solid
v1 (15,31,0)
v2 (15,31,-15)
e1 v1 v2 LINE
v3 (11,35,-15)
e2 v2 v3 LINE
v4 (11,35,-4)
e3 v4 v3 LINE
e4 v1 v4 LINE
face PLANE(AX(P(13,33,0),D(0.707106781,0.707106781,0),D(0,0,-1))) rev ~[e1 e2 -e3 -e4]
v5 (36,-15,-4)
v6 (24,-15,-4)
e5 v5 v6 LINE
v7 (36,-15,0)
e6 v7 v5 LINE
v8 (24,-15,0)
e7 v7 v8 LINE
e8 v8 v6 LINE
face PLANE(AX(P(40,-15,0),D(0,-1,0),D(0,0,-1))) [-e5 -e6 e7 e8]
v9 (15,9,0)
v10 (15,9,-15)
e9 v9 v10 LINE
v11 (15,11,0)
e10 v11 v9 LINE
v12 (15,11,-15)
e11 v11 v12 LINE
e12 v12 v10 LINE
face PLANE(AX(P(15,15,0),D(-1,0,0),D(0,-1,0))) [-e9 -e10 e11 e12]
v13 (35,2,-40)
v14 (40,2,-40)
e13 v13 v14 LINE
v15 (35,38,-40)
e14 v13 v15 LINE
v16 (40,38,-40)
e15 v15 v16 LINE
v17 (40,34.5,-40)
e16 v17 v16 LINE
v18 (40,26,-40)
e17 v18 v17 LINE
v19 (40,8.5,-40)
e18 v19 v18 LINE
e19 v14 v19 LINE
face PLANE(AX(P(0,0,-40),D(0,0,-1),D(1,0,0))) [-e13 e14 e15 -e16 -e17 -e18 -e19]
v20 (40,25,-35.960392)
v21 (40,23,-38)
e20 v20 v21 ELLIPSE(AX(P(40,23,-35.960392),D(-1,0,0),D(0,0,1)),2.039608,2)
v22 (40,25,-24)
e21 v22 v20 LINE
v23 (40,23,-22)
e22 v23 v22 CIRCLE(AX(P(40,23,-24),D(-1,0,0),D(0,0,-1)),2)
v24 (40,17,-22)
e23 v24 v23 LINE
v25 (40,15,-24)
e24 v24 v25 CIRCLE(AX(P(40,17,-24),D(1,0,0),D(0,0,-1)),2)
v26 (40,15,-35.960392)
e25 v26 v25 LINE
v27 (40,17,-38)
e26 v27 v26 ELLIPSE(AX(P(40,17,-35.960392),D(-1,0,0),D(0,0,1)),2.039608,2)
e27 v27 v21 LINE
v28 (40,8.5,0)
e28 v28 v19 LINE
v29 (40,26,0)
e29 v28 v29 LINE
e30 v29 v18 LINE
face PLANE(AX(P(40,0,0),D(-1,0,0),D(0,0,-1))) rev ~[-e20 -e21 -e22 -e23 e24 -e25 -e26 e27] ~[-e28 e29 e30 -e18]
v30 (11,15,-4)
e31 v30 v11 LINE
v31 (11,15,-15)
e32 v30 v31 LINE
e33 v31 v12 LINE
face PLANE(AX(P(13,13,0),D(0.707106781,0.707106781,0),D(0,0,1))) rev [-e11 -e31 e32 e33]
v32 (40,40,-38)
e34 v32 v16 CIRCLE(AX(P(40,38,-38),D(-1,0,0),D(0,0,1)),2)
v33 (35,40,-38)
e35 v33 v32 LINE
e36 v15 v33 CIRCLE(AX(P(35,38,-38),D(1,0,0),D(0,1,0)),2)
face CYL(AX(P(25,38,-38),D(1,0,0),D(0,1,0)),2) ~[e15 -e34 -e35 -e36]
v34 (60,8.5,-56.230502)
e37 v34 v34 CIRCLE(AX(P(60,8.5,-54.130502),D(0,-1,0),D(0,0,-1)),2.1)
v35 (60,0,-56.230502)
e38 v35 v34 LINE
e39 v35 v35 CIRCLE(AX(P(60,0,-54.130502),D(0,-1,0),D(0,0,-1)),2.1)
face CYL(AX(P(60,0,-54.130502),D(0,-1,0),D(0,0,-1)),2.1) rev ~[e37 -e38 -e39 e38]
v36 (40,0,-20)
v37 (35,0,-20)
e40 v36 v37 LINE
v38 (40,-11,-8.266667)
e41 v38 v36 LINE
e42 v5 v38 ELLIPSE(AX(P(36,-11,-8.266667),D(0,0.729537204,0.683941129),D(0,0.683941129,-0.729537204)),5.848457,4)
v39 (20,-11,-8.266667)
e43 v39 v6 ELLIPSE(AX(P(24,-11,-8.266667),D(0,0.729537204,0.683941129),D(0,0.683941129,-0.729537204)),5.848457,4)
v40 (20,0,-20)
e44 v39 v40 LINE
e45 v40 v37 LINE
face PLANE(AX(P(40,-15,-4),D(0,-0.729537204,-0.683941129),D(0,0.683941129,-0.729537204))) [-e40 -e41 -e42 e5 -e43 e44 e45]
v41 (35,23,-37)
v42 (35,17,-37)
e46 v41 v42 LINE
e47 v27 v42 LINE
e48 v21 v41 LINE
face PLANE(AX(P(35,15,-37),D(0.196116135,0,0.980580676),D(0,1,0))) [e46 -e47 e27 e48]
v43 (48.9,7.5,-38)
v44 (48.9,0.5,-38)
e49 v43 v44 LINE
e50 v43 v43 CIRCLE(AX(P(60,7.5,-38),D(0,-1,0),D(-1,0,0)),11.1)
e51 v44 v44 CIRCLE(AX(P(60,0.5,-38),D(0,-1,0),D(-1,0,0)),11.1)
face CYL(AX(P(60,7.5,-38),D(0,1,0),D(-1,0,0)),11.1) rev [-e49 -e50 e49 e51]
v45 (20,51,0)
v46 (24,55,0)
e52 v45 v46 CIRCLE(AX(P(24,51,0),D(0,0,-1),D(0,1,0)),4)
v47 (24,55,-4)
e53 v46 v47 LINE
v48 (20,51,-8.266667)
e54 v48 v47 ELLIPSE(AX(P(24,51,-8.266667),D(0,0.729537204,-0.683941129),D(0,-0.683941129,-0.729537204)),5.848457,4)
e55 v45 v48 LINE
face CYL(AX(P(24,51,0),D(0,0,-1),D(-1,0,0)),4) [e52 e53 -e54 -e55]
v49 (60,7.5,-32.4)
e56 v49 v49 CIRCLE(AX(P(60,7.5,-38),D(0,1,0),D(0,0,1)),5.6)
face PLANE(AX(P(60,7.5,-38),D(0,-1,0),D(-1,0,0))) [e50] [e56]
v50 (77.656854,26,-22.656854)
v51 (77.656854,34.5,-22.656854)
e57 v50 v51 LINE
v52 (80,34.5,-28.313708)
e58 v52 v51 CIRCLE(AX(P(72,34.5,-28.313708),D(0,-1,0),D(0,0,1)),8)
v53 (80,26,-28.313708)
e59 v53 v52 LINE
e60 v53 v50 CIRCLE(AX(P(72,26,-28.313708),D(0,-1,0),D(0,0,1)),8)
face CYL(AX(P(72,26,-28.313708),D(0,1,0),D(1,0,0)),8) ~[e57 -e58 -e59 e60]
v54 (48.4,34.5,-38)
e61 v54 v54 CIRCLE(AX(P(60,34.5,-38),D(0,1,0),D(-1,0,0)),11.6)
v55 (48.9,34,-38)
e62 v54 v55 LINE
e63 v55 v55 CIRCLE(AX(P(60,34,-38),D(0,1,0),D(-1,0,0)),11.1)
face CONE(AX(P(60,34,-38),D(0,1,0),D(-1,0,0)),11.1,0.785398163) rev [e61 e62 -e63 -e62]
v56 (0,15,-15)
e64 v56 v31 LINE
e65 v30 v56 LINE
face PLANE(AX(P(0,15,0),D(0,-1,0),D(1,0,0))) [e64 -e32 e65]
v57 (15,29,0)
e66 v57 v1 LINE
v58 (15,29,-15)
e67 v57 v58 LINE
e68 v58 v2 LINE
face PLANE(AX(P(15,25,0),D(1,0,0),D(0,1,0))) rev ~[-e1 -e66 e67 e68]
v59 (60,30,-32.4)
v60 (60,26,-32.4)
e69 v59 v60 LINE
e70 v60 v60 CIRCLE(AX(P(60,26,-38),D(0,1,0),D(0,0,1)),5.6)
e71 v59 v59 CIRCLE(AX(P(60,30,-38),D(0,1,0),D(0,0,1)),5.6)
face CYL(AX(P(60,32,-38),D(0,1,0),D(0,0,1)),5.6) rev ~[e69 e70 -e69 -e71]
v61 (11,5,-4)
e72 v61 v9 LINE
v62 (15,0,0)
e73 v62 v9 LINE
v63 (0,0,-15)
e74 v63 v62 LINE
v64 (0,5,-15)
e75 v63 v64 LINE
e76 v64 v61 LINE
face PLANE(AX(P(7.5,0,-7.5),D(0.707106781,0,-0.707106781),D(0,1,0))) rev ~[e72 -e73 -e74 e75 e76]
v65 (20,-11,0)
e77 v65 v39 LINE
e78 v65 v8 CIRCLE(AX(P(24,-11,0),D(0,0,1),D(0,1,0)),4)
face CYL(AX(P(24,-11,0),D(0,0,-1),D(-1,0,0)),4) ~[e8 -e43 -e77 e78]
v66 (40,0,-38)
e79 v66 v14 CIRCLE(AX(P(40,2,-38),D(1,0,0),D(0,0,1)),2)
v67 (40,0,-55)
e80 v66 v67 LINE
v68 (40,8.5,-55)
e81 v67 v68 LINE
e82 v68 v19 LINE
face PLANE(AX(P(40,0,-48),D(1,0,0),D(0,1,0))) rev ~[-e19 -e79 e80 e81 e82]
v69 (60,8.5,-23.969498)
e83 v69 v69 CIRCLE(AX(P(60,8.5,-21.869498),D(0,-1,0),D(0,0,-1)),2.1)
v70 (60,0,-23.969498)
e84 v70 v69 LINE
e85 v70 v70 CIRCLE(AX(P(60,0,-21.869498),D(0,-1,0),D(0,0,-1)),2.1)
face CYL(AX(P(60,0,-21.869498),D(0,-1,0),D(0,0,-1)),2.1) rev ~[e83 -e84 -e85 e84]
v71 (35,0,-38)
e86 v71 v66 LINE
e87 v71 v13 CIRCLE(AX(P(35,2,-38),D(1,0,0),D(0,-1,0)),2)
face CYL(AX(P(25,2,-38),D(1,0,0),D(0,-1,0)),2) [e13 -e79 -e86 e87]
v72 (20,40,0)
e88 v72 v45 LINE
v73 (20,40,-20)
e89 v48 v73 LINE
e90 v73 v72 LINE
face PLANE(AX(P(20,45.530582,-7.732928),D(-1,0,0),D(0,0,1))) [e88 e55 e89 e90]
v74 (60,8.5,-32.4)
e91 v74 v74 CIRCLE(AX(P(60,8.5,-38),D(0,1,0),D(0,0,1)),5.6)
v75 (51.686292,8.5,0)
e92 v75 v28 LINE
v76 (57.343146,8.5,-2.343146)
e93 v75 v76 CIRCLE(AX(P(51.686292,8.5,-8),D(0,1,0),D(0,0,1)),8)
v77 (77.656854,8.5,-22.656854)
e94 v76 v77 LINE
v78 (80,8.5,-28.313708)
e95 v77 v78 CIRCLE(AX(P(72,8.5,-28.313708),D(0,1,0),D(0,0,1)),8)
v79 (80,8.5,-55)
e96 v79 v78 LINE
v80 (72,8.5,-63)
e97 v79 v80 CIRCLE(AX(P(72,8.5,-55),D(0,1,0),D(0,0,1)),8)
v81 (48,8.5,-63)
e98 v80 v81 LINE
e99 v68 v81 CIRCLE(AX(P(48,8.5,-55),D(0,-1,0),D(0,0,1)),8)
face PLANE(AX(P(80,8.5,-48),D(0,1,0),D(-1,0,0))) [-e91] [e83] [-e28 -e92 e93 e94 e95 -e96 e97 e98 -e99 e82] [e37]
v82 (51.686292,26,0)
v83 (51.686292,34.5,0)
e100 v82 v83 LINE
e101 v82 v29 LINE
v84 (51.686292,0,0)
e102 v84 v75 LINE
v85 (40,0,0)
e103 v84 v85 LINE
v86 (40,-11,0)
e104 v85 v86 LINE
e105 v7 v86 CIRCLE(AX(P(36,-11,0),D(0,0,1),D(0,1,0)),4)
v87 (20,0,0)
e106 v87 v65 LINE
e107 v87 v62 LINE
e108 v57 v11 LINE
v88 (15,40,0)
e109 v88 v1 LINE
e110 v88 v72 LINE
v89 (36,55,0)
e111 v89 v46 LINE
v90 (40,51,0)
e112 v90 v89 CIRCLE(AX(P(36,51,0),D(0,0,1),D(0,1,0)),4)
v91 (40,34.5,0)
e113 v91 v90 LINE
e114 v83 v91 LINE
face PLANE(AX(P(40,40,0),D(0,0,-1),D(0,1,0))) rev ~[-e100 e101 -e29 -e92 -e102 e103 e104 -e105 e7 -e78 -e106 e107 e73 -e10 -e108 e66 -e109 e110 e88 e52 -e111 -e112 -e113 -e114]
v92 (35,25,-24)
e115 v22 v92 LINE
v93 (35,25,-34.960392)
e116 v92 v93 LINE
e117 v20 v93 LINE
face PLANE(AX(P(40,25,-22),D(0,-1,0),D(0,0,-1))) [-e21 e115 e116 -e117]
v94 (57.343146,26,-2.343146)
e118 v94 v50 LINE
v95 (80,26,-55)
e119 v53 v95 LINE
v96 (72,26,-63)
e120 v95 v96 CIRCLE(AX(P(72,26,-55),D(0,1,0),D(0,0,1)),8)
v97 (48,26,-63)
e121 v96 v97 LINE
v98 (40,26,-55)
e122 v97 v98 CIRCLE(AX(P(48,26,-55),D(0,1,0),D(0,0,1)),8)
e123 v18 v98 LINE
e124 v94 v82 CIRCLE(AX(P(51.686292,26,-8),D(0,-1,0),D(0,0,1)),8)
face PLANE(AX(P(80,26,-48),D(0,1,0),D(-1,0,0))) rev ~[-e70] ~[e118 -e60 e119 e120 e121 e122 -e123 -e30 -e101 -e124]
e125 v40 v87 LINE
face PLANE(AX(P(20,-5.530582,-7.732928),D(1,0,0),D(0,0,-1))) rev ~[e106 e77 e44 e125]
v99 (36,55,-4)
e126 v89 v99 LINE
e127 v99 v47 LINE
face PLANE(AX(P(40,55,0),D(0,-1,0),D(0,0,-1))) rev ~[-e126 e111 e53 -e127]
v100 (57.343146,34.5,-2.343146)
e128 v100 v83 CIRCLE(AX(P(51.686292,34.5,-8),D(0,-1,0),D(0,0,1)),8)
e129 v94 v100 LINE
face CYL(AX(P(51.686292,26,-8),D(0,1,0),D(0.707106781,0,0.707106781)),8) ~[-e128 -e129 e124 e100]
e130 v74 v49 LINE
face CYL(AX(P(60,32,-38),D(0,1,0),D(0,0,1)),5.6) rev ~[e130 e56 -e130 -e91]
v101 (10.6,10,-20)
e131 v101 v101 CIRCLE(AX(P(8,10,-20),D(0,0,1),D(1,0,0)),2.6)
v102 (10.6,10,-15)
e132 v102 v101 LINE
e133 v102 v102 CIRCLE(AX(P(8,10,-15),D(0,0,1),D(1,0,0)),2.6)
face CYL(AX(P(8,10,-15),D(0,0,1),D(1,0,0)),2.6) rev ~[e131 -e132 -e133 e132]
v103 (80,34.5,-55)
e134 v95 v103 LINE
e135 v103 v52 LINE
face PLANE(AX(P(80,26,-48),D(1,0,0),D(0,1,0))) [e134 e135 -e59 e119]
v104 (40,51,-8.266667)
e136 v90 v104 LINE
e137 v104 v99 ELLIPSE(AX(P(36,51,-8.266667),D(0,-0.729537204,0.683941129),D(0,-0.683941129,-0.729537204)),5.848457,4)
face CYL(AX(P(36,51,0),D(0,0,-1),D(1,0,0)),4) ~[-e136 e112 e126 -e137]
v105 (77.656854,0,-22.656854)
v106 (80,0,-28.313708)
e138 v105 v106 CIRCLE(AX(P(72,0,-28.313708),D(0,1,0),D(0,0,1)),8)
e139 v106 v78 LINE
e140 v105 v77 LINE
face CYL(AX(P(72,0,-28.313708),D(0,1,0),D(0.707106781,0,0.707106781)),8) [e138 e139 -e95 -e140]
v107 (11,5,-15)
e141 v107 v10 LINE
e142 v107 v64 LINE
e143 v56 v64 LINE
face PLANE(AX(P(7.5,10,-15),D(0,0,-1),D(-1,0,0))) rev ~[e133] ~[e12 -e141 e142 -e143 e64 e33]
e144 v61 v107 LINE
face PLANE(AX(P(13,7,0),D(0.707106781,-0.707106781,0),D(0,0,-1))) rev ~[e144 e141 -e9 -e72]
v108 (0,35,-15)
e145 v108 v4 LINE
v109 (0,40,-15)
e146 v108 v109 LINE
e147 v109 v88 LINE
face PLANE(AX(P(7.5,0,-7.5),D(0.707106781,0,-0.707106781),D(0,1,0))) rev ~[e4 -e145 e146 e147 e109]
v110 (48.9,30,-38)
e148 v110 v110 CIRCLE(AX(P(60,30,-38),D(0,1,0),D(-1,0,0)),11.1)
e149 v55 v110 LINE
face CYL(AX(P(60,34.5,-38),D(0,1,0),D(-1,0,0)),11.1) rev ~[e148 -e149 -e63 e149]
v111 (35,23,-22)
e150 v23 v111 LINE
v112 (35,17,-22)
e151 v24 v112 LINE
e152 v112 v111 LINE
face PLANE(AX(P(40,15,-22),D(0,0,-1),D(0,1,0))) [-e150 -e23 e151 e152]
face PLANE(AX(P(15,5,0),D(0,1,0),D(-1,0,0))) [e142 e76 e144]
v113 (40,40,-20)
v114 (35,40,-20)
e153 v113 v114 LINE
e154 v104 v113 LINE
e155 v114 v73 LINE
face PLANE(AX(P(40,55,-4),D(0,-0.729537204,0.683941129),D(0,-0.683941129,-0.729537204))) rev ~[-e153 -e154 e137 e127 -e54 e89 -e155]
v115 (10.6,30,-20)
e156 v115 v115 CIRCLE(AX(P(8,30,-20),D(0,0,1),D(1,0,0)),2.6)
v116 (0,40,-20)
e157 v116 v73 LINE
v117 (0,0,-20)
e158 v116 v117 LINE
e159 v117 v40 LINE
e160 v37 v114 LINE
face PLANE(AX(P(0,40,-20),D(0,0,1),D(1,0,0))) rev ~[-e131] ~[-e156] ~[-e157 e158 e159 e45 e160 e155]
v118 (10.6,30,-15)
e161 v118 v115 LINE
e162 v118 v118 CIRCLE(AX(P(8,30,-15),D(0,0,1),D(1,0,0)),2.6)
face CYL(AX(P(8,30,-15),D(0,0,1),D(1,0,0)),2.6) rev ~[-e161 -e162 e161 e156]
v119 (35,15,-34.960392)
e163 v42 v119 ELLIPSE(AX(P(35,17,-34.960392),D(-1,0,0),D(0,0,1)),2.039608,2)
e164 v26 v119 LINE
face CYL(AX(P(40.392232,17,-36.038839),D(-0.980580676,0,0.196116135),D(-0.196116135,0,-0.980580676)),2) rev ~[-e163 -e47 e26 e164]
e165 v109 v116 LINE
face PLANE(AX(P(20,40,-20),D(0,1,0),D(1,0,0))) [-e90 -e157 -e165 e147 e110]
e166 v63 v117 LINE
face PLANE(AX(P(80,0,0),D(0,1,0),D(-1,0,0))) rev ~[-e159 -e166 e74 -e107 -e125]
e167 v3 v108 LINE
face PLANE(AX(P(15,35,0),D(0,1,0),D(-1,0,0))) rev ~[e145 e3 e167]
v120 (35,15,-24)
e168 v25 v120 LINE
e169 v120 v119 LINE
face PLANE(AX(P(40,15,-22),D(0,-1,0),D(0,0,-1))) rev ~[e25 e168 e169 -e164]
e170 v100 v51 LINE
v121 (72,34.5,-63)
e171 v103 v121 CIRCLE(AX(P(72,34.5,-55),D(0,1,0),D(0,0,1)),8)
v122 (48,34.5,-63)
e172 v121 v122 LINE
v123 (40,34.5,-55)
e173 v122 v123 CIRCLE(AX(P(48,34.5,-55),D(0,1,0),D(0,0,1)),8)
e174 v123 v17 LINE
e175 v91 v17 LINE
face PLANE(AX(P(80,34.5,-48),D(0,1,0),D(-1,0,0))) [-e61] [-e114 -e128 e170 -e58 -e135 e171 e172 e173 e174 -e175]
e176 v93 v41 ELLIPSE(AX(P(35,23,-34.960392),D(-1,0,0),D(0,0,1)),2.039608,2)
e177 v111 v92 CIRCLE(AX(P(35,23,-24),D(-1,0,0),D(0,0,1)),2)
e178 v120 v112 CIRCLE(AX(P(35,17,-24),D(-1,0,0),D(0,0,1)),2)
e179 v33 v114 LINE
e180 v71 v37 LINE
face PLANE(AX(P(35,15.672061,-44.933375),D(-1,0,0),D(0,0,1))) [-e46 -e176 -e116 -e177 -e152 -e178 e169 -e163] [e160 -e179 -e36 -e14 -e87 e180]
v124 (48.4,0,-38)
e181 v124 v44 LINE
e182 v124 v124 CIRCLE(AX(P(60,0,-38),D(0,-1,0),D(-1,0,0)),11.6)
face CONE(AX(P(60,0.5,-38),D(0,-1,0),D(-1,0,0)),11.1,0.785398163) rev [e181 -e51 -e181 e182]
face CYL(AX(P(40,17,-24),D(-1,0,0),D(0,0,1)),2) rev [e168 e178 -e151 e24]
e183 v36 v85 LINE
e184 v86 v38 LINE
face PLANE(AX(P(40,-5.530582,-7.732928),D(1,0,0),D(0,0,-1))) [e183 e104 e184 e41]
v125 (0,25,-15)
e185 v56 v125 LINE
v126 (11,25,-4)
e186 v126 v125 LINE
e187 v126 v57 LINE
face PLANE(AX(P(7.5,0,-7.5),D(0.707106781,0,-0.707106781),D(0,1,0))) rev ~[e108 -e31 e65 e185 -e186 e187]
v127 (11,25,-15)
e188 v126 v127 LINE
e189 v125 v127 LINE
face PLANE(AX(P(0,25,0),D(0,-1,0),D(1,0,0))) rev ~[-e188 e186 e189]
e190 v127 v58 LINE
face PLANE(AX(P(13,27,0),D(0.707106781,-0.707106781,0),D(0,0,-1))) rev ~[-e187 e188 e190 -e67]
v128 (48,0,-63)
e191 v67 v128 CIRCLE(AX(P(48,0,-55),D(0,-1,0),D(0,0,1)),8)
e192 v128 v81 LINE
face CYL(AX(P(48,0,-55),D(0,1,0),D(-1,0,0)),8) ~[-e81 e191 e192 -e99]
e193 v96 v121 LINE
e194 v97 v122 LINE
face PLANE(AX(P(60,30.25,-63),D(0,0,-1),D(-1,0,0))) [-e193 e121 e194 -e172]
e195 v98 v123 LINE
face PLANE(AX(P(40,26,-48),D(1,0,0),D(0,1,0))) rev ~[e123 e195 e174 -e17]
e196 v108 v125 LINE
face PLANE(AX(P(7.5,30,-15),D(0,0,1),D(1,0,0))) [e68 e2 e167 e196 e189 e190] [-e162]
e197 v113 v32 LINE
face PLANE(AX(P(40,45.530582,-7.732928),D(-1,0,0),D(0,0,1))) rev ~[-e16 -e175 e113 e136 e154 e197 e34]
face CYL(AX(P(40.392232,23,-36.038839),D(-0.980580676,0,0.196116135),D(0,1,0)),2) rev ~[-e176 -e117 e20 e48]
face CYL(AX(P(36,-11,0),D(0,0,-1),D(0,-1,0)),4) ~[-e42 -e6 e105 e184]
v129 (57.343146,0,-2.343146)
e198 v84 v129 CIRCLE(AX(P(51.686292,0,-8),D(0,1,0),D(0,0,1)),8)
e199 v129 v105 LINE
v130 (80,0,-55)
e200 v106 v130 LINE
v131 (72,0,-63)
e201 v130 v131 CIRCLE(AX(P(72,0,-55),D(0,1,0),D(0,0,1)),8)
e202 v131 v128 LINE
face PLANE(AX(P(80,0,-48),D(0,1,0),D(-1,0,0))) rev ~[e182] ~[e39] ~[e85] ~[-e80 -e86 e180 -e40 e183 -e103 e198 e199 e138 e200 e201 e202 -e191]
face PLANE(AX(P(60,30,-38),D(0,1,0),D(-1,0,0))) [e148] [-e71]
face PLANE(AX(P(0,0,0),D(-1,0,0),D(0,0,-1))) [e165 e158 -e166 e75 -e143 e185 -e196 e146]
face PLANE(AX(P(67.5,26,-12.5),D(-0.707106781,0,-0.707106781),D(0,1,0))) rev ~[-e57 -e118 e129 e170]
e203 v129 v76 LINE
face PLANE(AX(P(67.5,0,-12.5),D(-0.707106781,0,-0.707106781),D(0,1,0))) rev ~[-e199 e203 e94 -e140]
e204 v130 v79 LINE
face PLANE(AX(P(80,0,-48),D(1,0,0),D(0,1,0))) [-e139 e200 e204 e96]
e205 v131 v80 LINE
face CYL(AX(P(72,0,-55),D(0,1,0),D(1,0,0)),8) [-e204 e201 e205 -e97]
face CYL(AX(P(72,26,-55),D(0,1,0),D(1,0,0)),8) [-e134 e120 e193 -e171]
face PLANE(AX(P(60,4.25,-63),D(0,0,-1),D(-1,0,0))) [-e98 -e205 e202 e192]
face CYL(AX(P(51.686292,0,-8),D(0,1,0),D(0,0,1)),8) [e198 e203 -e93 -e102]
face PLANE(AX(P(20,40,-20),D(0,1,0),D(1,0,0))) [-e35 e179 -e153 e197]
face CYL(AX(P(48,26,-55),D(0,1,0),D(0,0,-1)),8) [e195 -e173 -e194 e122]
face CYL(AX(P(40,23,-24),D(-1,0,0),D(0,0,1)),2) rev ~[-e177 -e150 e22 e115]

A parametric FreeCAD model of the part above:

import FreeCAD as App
import Part
import Sketcher

V = App.Vector


def edges_at(feature, points):
    """Names of the edges that pass closest to the given points."""
    edges = feature.Shape.Edges
    near = lambda p: min(range(len(edges)), key=lambda i: edges[i].distToShape(Part.Vertex(*p))[0])
    return sorted({f"Edge{near(p) + 1}" for p in points})


def add_polygon(sketch, points):
    """Adds a closed chain of lines whose ends are joined by coincident constraints."""
    first, n = sketch.GeometryCount, len(points)
    for a, b in zip(points, points[1:] + points[:1]):
        sketch.addGeometry(Part.LineSegment(App.Vector(*a, 0), App.Vector(*b, 0)), False)
    for i in range(n):
        sketch.addConstraint(Sketcher.Constraint("Coincident", first + i, 2, first + (i + 1) % n, 1))

doc = App.newDocument("Part")
params = doc.addObject("Spreadsheet::Sheet", "Params")
for row, (alias, value) in enumerate([
    ("sketch1_width", "40 mm"),
    ("pad1_length", "40 mm"),
    ("sketch2_width", "25 mm"),
    ("sketch2_height", "20 mm"),
    ("pocket1_length", "40 mm"),
    ("chamfer_size", "15 mm"),
    ("sketch3_width", "15 mm"),
    ("sketch3_height", "10 mm"),
    ("pocket2_length", "15 mm"),
    ("chamfer2_size", "4 mm"),
    ("sketch4_diameter", "5.2 mm"),
    ("pocket3_length", "17 mm"),
    ("sketch5_width", "40 mm"),
    ("sketch5_height", "8.5 mm"),
    ("pad2_length", "8 mm"),
    ("pad2_length2", "40 mm"),
    ("sketch6_width", "10 mm"),
    ("sketch6_height", "14 mm"),
    ("pocket4_length", "26 mm"),
    ("sketch7_diameter", "11.2 mm"),
    ("pocket5_length", "34 mm"),
    ("sketch8_width", "15 mm"),
    ("sketch8_height", "20 mm"),
    ("sketch8_height2", "4 mm"),
    ("pad3_length", "20 mm"),
    ("fillet_radius", "4 mm"),
    ("fillet2_radius", "2 mm"),
    ("chamfer3_size", "25 mm"),
    ("chamfer4_size", "2 mm"),
    ("chamfer4_size2", "10 mm"),
    ("fillet3_radius", "2 mm"),
    ("sketch9_width", "40 mm"),
    ("sketch9_height", "8.5 mm"),
    ("pad4_length", "15 mm"),
    ("sketch10_width", "40 mm"),
    ("sketch10_height", "8.5 mm"),
    ("pad5_length", "15 mm"),
    ("sketch11_diameter", "22.2 mm"),
    ("pocket6_length", "4.5 mm"),
    ("sketch12_diameter", "22.2 mm"),
    ("pocket7_length", "7.5 mm"),
    ("sketch13_diameter", "4.2 mm"),
    ("pocket8_length", "10 mm"),
    ("chamfer5_size", "0.5 mm"),
    ("fillet4_radius", "8 mm"),
    ("pocket9_length", "10 mm"),
], start=1):
    params.set(f"A{row}", alias)
    params.set(f"B{row}", "=" + value)
    params.setAlias(f"B{row}", alias)

body = doc.addObject("PartDesign::Body", "Body")

# Sketch on XZ plane
sketch1 = body.newObject("Sketcher::SketchObject", "Sketch")
sketch1.AttachmentSupport = (doc.getObject("XZ_Plane"), [""])
sketch1.MapMode = "FlatFace"
add_polygon(sketch1, [(0, -40), (0, 0), (40, 0), (40, -40)])  # lines 0-3
sketch1.addConstraint(Sketcher.Constraint("Vertical", 0))
sketch1.addConstraint(Sketcher.Constraint("Horizontal", 1))
sketch1.addConstraint(Sketcher.Constraint("Vertical", 2))
sketch1.addConstraint(Sketcher.Constraint("Horizontal", 3))
sketch1.addConstraint(Sketcher.Constraint("Coincident", 0, 2, -1, 1))
sketch1.addConstraint(Sketcher.Constraint("Equal", 3, 0))
sketch1.addConstraint(Sketcher.Constraint("DistanceX", 1, 1, 1, 2, 40.0))
sketch1.setExpression("Constraints[10]", "Params.sketch1_width")
pad1 = body.newObject("PartDesign::Pad", "Pad")
pad1.Profile = sketch1
pad1.setExpression("Length", "Params.pad1_length")
pad1.Reversed = True

# Sketch on XZ plane
sketch2 = body.newObject("Sketcher::SketchObject", "Sketch001")
sketch2.AttachmentSupport = (doc.getObject("XZ_Plane"), [""])
sketch2.MapMode = "FlatFace"
sketch2.AttachmentOffset = App.Placement(V(0, 0, -40), App.Rotation())
add_polygon(sketch2, [(0, -40), (0, -20), (25, -20), (25, -40)])  # lines 0-3
sketch2.addConstraint(Sketcher.Constraint("Vertical", 0))
sketch2.addConstraint(Sketcher.Constraint("Horizontal", 1))
sketch2.addConstraint(Sketcher.Constraint("Vertical", 2))
sketch2.addConstraint(Sketcher.Constraint("Horizontal", 3))
sketch2.addConstraint(Sketcher.Constraint("PointOnObject", 0, 2, -2))
sketch2.addConstraint(Sketcher.Constraint("DistanceX", 1, 1, 1, 2, 25.0))
sketch2.addConstraint(Sketcher.Constraint("DistanceY", 0, 1, 0, 2, 20.0))
sketch2.addConstraint(Sketcher.Constraint("DistanceY", 0, 2, -1, 1, 20.0))
sketch2.setExpression("Constraints[9]", "Params.sketch2_width")
sketch2.setExpression("Constraints[10]", "Params.sketch2_height")
pocket1 = body.newObject("PartDesign::Pocket", "Pocket")
pocket1.Profile = sketch2
pocket1.setExpression("Length", "Params.pocket1_length")
pocket1.Reversed = True
doc.recompute()

chamfer = body.newObject("PartDesign::Chamfer", "Chamfer")
chamfer.Base = (pocket1, edges_at(pocket1, [(0, 20, 0)]))
chamfer.setExpression("Size", "Params.chamfer_size")

# Sketch on XY plane
sketch3 = body.newObject("Sketcher::SketchObject", "Sketch002")
sketch3.AttachmentSupport = (doc.getObject("XY_Plane"), [""])
sketch3.MapMode = "FlatFace"
add_polygon(sketch3, [(0, 15), (0, 5), (15, 5), (15, 15)])  # lines 0-3
add_polygon(sketch3, [(0, 25), (15, 25), (15, 35), (0, 35)])  # lines 4-7
sketch3.addConstraint(Sketcher.Constraint("Vertical", 0))
sketch3.addConstraint(Sketcher.Constraint("Horizontal", 1))
sketch3.addConstraint(Sketcher.Constraint("Vertical", 2))
sketch3.addConstraint(Sketcher.Constraint("Horizontal", 3))
sketch3.addConstraint(Sketcher.Constraint("Horizontal", 4))
sketch3.addConstraint(Sketcher.Constraint("Vertical", 5))
sketch3.addConstraint(Sketcher.Constraint("Horizontal", 6))
sketch3.addConstraint(Sketcher.Constraint("Vertical", 7))
sketch3.addConstraint(Sketcher.Constraint("PointOnObject", 0, 2, -2))
sketch3.addConstraint(Sketcher.Constraint("PointOnObject", 6, 2, -2))
sketch3.addConstraint(Sketcher.Constraint("Vertical", 2, 2, 4, 2))
sketch3.addConstraint(Sketcher.Constraint("Equal", 2, 5))
sketch3.addConstraint(Sketcher.Constraint("DistanceX", 1, 1, 1, 2, 15.0))
sketch3.addConstraint(Sketcher.Constraint("DistanceY", 0, 2, 0, 1, 10.0))
sketch3.addConstraint(Sketcher.Constraint("DistanceY", -1, 1, 0, 2, 5.0))
sketch3.addConstraint(Sketcher.Constraint("DistanceY", -1, 1, 4, 2, 25.0))
sketch3.setExpression("Constraints[20]", "Params.sketch3_width")
sketch3.setExpression("Constraints[21]", "Params.sketch3_height")
pocket2 = body.newObject("PartDesign::Pocket", "Pocket001")
pocket2.Profile = sketch3
pocket2.setExpression("Length", "Params.pocket2_length")
doc.recompute()

chamfer2 = body.newObject("PartDesign::Chamfer", "Chamfer001")
chamfer2.Base = (pocket2, edges_at(pocket2, [
    (15, 35, -7.5),
    (15, 25, -7.5),
    (15, 15, -7.5),
    (15, 5, -7.5),
]))
chamfer2.setExpression("Size", "Params.chamfer2_size")

# Sketch on XY plane
sketch4 = body.newObject("Sketcher::SketchObject", "Sketch003")
sketch4.AttachmentSupport = (doc.getObject("XY_Plane"), [""])
sketch4.MapMode = "FlatFace"
sketch4.AttachmentOffset = App.Placement(V(0, 0, -15), App.Rotation())
sketch4.addGeometry(Part.Circle(V(8, 30, 0), V(0, 0, 1), 2.6), False)
sketch4.addGeometry(Part.Circle(V(8, 10, 0), V(0, 0, 1), 2.6), False)
sketch4.addConstraint(Sketcher.Constraint("Equal", 0, 1))
sketch4.addConstraint(Sketcher.Constraint("Vertical", 0, 3, 1, 3))
sketch4.addConstraint(Sketcher.Constraint("Diameter", 0, 5.2))
sketch4.addConstraint(Sketcher.Constraint("DistanceX", -1, 1, 0, 3, 8.0))
sketch4.addConstraint(Sketcher.Constraint("DistanceY", -1, 1, 0, 3, 30.0))
sketch4.addConstraint(Sketcher.Constraint("DistanceY", -1, 1, 1, 3, 10.0))
sketch4.setExpression("Constraints[2]", "Params.sketch4_diameter")
pocket3 = body.newObject("PartDesign::Pocket", "Pocket002")
pocket3.Profile = sketch4
pocket3.setExpression("Length", "Params.pocket3_length")

# Sketch on XY plane
sketch5 = body.newObject("Sketcher::SketchObject", "Sketch004")
sketch5.AttachmentSupport = (doc.getObject("XY_Plane"), [""])
sketch5.MapMode = "FlatFace"
sketch5.AttachmentOffset = App.Placement(V(0, 0, -40), App.Rotation())
add_polygon(sketch5, [(80, 8), (80, 0), (40, 0), (40, 8)])  # lines 0-3
add_polygon(sketch5, [(80, 34), (80, 26), (40, 26), (40, 34)])  # lines 4-7
sketch5.addConstraint(Sketcher.Constraint("Vertical", 0))
sketch5.addConstraint(Sketcher.Constraint("Horizontal", 1))
sketch5.addConstraint(Sketcher.Constraint("Vertical", 2))
sketch5.addConstraint(Sketcher.Constraint("Horizontal", 3))
sketch5.addConstraint(Sketcher.Constraint("Vertical", 4))
sketch5.addConstraint(Sketcher.Constraint("Horizontal", 5))
sketch5.addConstraint(Sketcher.Constraint("Vertical", 6))
sketch5.addConstraint(Sketcher.Constraint("Horizontal", 7))
sketch5.addConstraint(Sketcher.Constraint("PointOnObject", 0, 2, -1))
sketch5.addConstraint(Sketcher.Constraint("Vertical", 3, 2, 4, 2))
sketch5.addConstraint(Sketcher.Constraint("Vertical", 2, 2, 5, 2))
sketch5.addConstraint(Sketcher.Constraint("Equal", 2, 4))
sketch5.addConstraint(Sketcher.Constraint("DistanceX", 1, 2, 1, 1, 40.0))
sketch5.addConstraint(Sketcher.Constraint("DistanceY", 0, 2, 0, 1, 8.5))
sketch5.addConstraint(Sketcher.Constraint("DistanceX", -1, 1, 0, 2, 80.0))
sketch5.addConstraint(Sketcher.Constraint("DistanceY", -1, 1, 4, 2, 26.0))
sketch5.setExpression("Constraints[20]", "Params.sketch5_width")
sketch5.setExpression("Constraints[21]", "Params.sketch5_height")
pad2 = body.newObject("PartDesign::Pad", "Pad001")
pad2.Profile = sketch5
pad2.Type = "TwoLengths"
pad2.setExpression("Length", "Params.pad2_length")
pad2.setExpression("Length2", "Params.pad2_length2")
pad2.Reversed = True

# Sketch on YZ plane
sketch6 = body.newObject("Sketcher::SketchObject", "Sketch005")
sketch6.AttachmentSupport = (doc.getObject("YZ_Plane"), [""])
sketch6.MapMode = "FlatFace"
sketch6.AttachmentOffset = App.Placement(V(0, 0, 40), App.Rotation())
add_polygon(sketch6, [(25, -22), (15, -22), (15, -36), (25, -36)])  # lines 0-3
sketch6.addConstraint(Sketcher.Constraint("Horizontal", 0))
sketch6.addConstraint(Sketcher.Constraint("Vertical", 1))
sketch6.addConstraint(Sketcher.Constraint("Horizontal", 2))
sketch6.addConstraint(Sketcher.Constraint("Vertical", 3))
sketch6.addConstraint(Sketcher.Constraint("DistanceX", 0, 2, 0, 1, 10.0))
sketch6.addConstraint(Sketcher.Constraint("DistanceY", 1, 2, 1, 1, 14.0))
sketch6.addConstraint(Sketcher.Constraint("DistanceX", -1, 1, 0, 2, 15.0))
sketch6.addConstraint(Sketcher.Constraint("DistanceY", 0, 2, -1, 1, 22.0))
sketch6.setExpression("Constraints[8]", "Params.sketch6_width")
sketch6.setExpression("Constraints[9]", "Params.sketch6_height")
pocket4 = body.newObject("PartDesign::Pocket", "Pocket003")
pocket4.Profile = sketch6
pocket4.setExpression("Length", "Params.pocket4_length")

# Sketch on XZ plane
sketch7 = body.newObject("Sketcher::SketchObject", "Sketch006")
sketch7.AttachmentSupport = (doc.getObject("XZ_Plane"), [""])
sketch7.MapMode = "FlatFace"
sketch7.AttachmentOffset = App.Placement(V(0, 0, -32), App.Rotation())
sketch7.addGeometry(Part.Circle(V(60, -38, 0), V(0, 0, 1), 6), False)
sketch7.addConstraint(Sketcher.Constraint("Diameter", 0, 11.2))
sketch7.addConstraint(Sketcher.Constraint("DistanceX", -1, 1, 0, 3, 60.0))
sketch7.addConstraint(Sketcher.Constraint("DistanceY", 0, 3, -1, 1, 38.0))
sketch7.setExpression("Constraints[0]", "Params.sketch7_diameter")
pocket5 = body.newObject("PartDesign::Pocket", "Pocket004")
pocket5.Profile = sketch7
pocket5.setExpression("Length", "Params.pocket5_length")
pocket5.Reversed = True

# Sketch on YZ plane
sketch8 = body.newObject("Sketcher::SketchObject", "Sketch007")
sketch8.AttachmentSupport = (doc.getObject("YZ_Plane"), [""])
sketch8.MapMode = "FlatFace"
sketch8.AttachmentOffset = App.Placement(V(0, 0, 40), App.Rotation())
add_polygon(sketch8, [(55, 0), (40, 0), (40, -20), (55, -4)])  # lines 0-3
add_polygon(sketch8, [(0, 0), (-15, 0), (-15, -4), (0, -20)])  # lines 4-7
sketch8.addConstraint(Sketcher.Constraint("Horizontal", 0))
sketch8.addConstraint(Sketcher.Constraint("Vertical", 1))
sketch8.addConstraint(Sketcher.Constraint("Vertical", 3))
sketch8.addConstraint(Sketcher.Constraint("Horizontal", 4))
sketch8.addConstraint(Sketcher.Constraint("Vertical", 5))
sketch8.addConstraint(Sketcher.Constraint("Vertical", 7))
sketch8.addConstraint(Sketcher.Constraint("Coincident", 7, 2, -1, 1))
sketch8.addConstraint(Sketcher.Constraint("PointOnObject", 0, 2, -1))
sketch8.addConstraint(Sketcher.Constraint("Horizontal", 2, 2, 5, 2))
sketch8.addConstraint(Sketcher.Constraint("Horizontal", 1, 2, 6, 2))
sketch8.addConstraint(Sketcher.Constraint("Equal", 0, 4))
sketch8.addConstraint(Sketcher.Constraint("DistanceX", 0, 2, 0, 1, 15.0))
sketch8.addConstraint(Sketcher.Constraint("DistanceY", 1, 2, 1, 1, 20.0))
sketch8.addConstraint(Sketcher.Constraint("DistanceY", 3, 1, 3, 2, 4.0))
sketch8.addConstraint(Sketcher.Constraint("DistanceX", -1, 1, 0, 2, 40.0))
sketch8.setExpression("Constraints[19]", "Params.sketch8_width")
sketch8.setExpression("Constraints[20]", "Params.sketch8_height")
sketch8.setExpression("Constraints[21]", "Params.sketch8_height2")
pad3 = body.newObject("PartDesign::Pad", "Pad002")
pad3.Profile = sketch8
pad3.setExpression("Length", "Params.pad3_length")
pad3.Reversed = True
doc.recompute()

fillet = body.newObject("PartDesign::Fillet", "Fillet")
fillet.Base = (pad3, edges_at(pad3, [
    (20, 55, -2),
    (40, 55, -2),
    (20, -15, -2),
    (40, -15, -2),
]))
fillet.setExpression("Radius", "Params.fillet_radius")
doc.recompute()

fillet2 = body.newObject("PartDesign::Fillet", "Fillet001")
fillet2.Base = (fillet, edges_at(fillet, [(32.5, 40, -40), (32.5, 0, -40)]))
fillet2.setExpression("Radius", "Params.fillet2_radius")
doc.recompute()

chamfer3 = body.newObject("PartDesign::Chamfer", "Chamfer002")
chamfer3.Base = (fillet2, edges_at(fillet2, [(80, 4.25, 0), (80, 30.25, 0)]))
chamfer3.setExpression("Size", "Params.chamfer3_size")
doc.recompute()

chamfer4 = body.newObject("PartDesign::Chamfer", "Chamfer003")
chamfer4.Base = (chamfer3, edges_at(chamfer3, [(40, 20, -36)]))
chamfer4.ChamferType = "Two distances"
chamfer4.setExpression("Size", "Params.chamfer4_size")
chamfer4.setExpression("Size2", "Params.chamfer4_size2")
doc.recompute()

fillet3 = body.newObject("PartDesign::Fillet", "Fillet002")
fillet3.Base = (chamfer4, edges_at(chamfer4, [
    (27.5, 15, -36),
    (32.5, 15, -22),
    (32.5, 25, -22),
    (27.5, 25, -36),
    (35, 25, -37),
    (35, 15, -37),
]))
fillet3.setExpression("Radius", "Params.fillet3_radius")

# Sketch on XY plane
sketch9 = body.newObject("Sketcher::SketchObject", "Sketch008")
sketch9.AttachmentSupport = (doc.getObject("XY_Plane"), [""])
sketch9.MapMode = "FlatFace"
sketch9.AttachmentOffset = App.Placement(V(0, 0, -48), App.Rotation())
add_polygon(sketch9, [(80, 8), (80, 0), (40, 0), (40, 8)])  # lines 0-3
sketch9.addConstraint(Sketcher.Constraint("Vertical", 0))
sketch9.addConstraint(Sketcher.Constraint("Horizontal", 1))
sketch9.addConstraint(Sketcher.Constraint("Vertical", 2))
sketch9.addConstraint(Sketcher.Constraint("Horizontal", 3))
sketch9.addConstraint(Sketcher.Constraint("PointOnObject", 0, 2, -1))
sketch9.addConstraint(Sketcher.Constraint("DistanceX", 1, 2, 1, 1, 40.0))
sketch9.addConstraint(Sketcher.Constraint("DistanceY", 0, 2, 0, 1, 8.5))
sketch9.addConstraint(Sketcher.Constraint("DistanceX", -1, 1, 0, 2, 80.0))
sketch9.setExpression("Constraints[9]", "Params.sketch9_width")
sketch9.setExpression("Constraints[10]", "Params.sketch9_height")
pad4 = body.newObject("PartDesign::Pad", "Pad003")
pad4.Profile = sketch9
pad4.setExpression("Length", "Params.pad4_length")
pad4.Reversed = True

# Sketch on XY plane
sketch10 = body.newObject("Sketcher::SketchObject", "Sketch009")
sketch10.AttachmentSupport = (doc.getObject("XY_Plane"), [""])
sketch10.MapMode = "FlatFace"
sketch10.AttachmentOffset = App.Placement(V(0, 0, -48), App.Rotation())
add_polygon(sketch10, [(80, 34), (80, 26), (40, 26), (40, 34)])  # lines 0-3
sketch10.addConstraint(Sketcher.Constraint("Vertical", 0))
sketch10.addConstraint(Sketcher.Constraint("Horizontal", 1))
sketch10.addConstraint(Sketcher.Constraint("Vertical", 2))
sketch10.addConstraint(Sketcher.Constraint("Horizontal", 3))
sketch10.addConstraint(Sketcher.Constraint("DistanceX", 1, 2, 1, 1, 40.0))
sketch10.addConstraint(Sketcher.Constraint("DistanceY", 0, 2, 0, 1, 8.5))
sketch10.addConstraint(Sketcher.Constraint("DistanceX", -1, 1, 0, 2, 80.0))
sketch10.addConstraint(Sketcher.Constraint("DistanceY", -1, 1, 0, 2, 26.0))
sketch10.setExpression("Constraints[8]", "Params.sketch10_width")
sketch10.setExpression("Constraints[9]", "Params.sketch10_height")
pad5 = body.newObject("PartDesign::Pad", "Pad004")
pad5.Profile = sketch10
pad5.setExpression("Length", "Params.pad5_length")
pad5.Reversed = True

# Sketch on XZ plane
sketch11 = body.newObject("Sketcher::SketchObject", "Sketch010")
sketch11.AttachmentSupport = (doc.getObject("XZ_Plane"), [""])
sketch11.MapMode = "FlatFace"
sketch11.AttachmentOffset = App.Placement(V(0, 0, -34.5), App.Rotation())
sketch11.addGeometry(Part.Circle(V(60, -38, 0), V(0, 0, 1), 11), False)
sketch11.addConstraint(Sketcher.Constraint("Diameter", 0, 22.2))
sketch11.addConstraint(Sketcher.Constraint("DistanceX", -1, 1, 0, 3, 60.0))
sketch11.addConstraint(Sketcher.Constraint("DistanceY", 0, 3, -1, 1, 38.0))
sketch11.setExpression("Constraints[0]", "Params.sketch11_diameter")
pocket6 = body.newObject("PartDesign::Pocket", "Pocket005")
pocket6.Profile = sketch11
pocket6.setExpression("Length", "Params.pocket6_length")
pocket6.Reversed = True

# Sketch on XZ plane
sketch12 = body.newObject("Sketcher::SketchObject", "Sketch011")
sketch12.AttachmentSupport = (doc.getObject("XZ_Plane"), [""])
sketch12.MapMode = "FlatFace"
sketch12.AttachmentOffset = App.Placement(V(0, 0, -7.5), App.Rotation())
sketch12.addGeometry(Part.Circle(V(60, -38, 0), V(0, 0, 1), 11), False)
sketch12.addConstraint(Sketcher.Constraint("Diameter", 0, 22.2))
sketch12.addConstraint(Sketcher.Constraint("DistanceX", -1, 1, 0, 3, 60.0))
sketch12.addConstraint(Sketcher.Constraint("DistanceY", 0, 3, -1, 1, 38.0))
sketch12.setExpression("Constraints[0]", "Params.sketch12_diameter")
pocket7 = body.newObject("PartDesign::Pocket", "Pocket006")
pocket7.Profile = sketch12
pocket7.setExpression("Length", "Params.pocket7_length")
pocket7.Reversed = True

# Sketch on XZ plane
sketch13 = body.newObject("Sketcher::SketchObject", "Sketch012")
sketch13.AttachmentSupport = (doc.getObject("XZ_Plane"), [""])
sketch13.MapMode = "FlatFace"
sketch13.addGeometry(Part.Circle(V(60, -54.1, 0), V(0, 0, 1), 2.1), False)
sketch13.addGeometry(Part.Circle(V(60, -21.9, 0), V(0, 0, 1), 2.1), False)
sketch13.addConstraint(Sketcher.Constraint("Equal", 0, 1))
sketch13.addConstraint(Sketcher.Constraint("Vertical", 0, 3, 1, 3))
sketch13.addConstraint(Sketcher.Constraint("Diameter", 0, 4.2))
sketch13.addConstraint(Sketcher.Constraint("DistanceX", -1, 1, 0, 3, 60.0))
sketch13.addConstraint(Sketcher.Constraint("DistanceY", 0, 3, -1, 1, 54.130502))
sketch13.addConstraint(Sketcher.Constraint("DistanceY", 1, 3, -1, 1, 21.869498))
sketch13.setExpression("Constraints[2]", "Params.sketch13_diameter")
pocket8 = body.newObject("PartDesign::Pocket", "Pocket007")
pocket8.Profile = sketch13
pocket8.setExpression("Length", "Params.pocket8_length")
doc.recompute()

chamfer5 = body.newObject("PartDesign::Chamfer", "Chamfer004")
chamfer5.Base = (pocket8, edges_at(pocket8, [(71.1, 34.5, -38), (71.1, 0, -38)]))
chamfer5.setExpression("Size", "Params.chamfer5_size")
doc.recompute()

fillet4 = body.newObject("PartDesign::Fillet", "Fillet003")
fillet4.Base = (chamfer5, edges_at(chamfer5, [
    (55, 30.25, 0),
    (55, 4.25, 0),
    (80, 4.25, -25),
    (80, 30.25, -25),
    (80, 4.25, -63),
    (40, 4.25, -63),
    (80, 30.25, -63),
    (40, 30.25, -63),
]))
fillet4.setExpression("Radius", "Params.fillet4_radius")

# Sketch on YZ plane
sketch14 = body.newObject("Sketcher::SketchObject", "Sketch013")
sketch14.AttachmentSupport = (doc.getObject("YZ_Plane"), [""])
sketch14.MapMode = "FlatFace"
sketch14.AttachmentOffset = App.Placement(V(0, 0, 25), App.Rotation())
add_polygon(sketch14, [(0, -20), (69, -20), (69, -63), (-51, -63)])  # lines 0-3
sketch14.addConstraint(Sketcher.Constraint("Horizontal", 0))
sketch14.addConstraint(Sketcher.Constraint("Vertical", 1))
sketch14.addConstraint(Sketcher.Constraint("Horizontal", 2))
sketch14.addConstraint(Sketcher.Constraint("PointOnObject", 3, 2, -2))
sketch14.addConstraint(Sketcher.Constraint("DistanceY", 0, 2, -1, 1, 20.0))
sketch14.addConstraint(Sketcher.Constraint("DistanceX", 0, 1, 0, 2, 68.838194))
sketch14.addConstraint(Sketcher.Constraint("DistanceX", 2, 2, 2, 1, 119.908915))
sketch14.addConstraint(Sketcher.Constraint("DistanceY", 1, 2, 1, 1, 42.566784))
pocket9 = body.newObject("PartDesign::Pocket", "Pocket008")
pocket9.Profile = sketch14
pocket9.setExpression("Length", "Params.pocket9_length")
pocket9.Reversed = True

doc.recompute()
